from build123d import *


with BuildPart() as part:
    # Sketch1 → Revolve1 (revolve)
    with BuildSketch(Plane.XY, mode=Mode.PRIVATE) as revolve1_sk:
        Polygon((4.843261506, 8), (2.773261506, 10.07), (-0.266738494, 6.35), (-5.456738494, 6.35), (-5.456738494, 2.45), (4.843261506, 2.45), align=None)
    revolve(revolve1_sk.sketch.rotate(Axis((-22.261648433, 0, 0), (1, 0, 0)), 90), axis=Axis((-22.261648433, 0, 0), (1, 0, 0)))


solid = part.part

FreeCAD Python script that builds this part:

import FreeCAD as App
import Part
import Sketcher
Q = App.Units.Quantity


def add_polygon(sketch, points):
    """Adds a closed chain of lines whose ends are joined by coincident constraints."""
    first, n = sketch.GeometryCount, len(points)
    for a, b in zip(points, points[1:] + points[:1]):
        sketch.addGeometry(Part.LineSegment(App.Vector(*a, 0), App.Vector(*b, 0)), False)
    for i in range(n):
        sketch.addConstraint(Sketcher.Constraint("Coincident", first + i, 2, first + (i + 1) % n, 1))

doc = App.newDocument("Part")
body = doc.addObject("PartDesign::Body", "Body")

# Sketch on XY plane
sketch1 = doc.addObject("Sketcher::SketchObject", "Sketch")
body.addObject(sketch1)
sketch1.AttachmentSupport = (doc.XY_Plane, [""])
sketch1.MapMode = "FlatFace"
add_polygon(sketch1, [(4.843262, 8), (2.773262, 10.07), (-0.266738, 6.35), (-5.456738, 6.35), (-5.456738, 2.45), (4.843262, 2.45)])  # lines 0-5
sketch1.addConstraint([
    Sketcher.Constraint("Horizontal", 2),
    Sketcher.Constraint("Vertical", 3),
    Sketcher.Constraint("Horizontal", 4),
    Sketcher.Constraint("Vertical", 5),
    Sketcher.Constraint("Angle", 0, Q("135 deg")),
    Sketcher.Constraint("DistanceX", 4, 1, 4, 2, Q("10.3 mm")),
    Sketcher.Constraint("DistanceY", 3, 2, 3, 1, Q("3.9 mm")),
    Sketcher.Constraint("DistanceY", -1, 1, 5, 2, Q("8 mm")),
    Sketcher.Constraint("DistanceX", 2, 2, 2, 1, Q("5.19 mm")),
    Sketcher.Constraint("DistanceY", 5, 1, 5, 2, Q("5.55 mm")),
    Sketcher.Constraint("DistanceY", -1, 1, 0, 2, Q("10.07 mm")),
    Sketcher.Constraint("DistanceX", -1, 1, 0, 2, Q("2.773262 mm")),
])
revolution = doc.addObject("PartDesign::Revolution", "Revolution")
body.addObject(revolution)
revolution.Profile = sketch1
revolution.ReferenceAxis = (sketch1, ["H_Axis"])
revolution.Angle = 360

doc.recompute()
